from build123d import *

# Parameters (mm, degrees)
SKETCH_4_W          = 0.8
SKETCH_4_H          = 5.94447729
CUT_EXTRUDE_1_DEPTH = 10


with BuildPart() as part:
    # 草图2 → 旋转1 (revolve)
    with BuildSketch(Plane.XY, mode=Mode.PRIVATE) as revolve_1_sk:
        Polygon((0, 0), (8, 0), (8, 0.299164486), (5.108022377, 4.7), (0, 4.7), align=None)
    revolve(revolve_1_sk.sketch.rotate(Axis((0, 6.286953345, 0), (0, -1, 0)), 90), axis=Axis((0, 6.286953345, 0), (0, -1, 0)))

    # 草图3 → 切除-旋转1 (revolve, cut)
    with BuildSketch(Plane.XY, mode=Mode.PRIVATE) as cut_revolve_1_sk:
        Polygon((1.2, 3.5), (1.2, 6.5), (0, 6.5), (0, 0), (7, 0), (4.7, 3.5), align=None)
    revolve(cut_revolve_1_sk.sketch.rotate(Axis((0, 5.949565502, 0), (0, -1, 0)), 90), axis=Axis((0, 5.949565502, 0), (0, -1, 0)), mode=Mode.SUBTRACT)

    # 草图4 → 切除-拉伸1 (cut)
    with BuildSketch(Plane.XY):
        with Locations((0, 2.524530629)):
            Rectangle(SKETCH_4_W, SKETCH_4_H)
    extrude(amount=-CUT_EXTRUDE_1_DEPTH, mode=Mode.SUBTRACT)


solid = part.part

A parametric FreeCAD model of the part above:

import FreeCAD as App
import Part
import Sketcher
Q = App.Units.Quantity


def add_polygon(sketch, points):
    """Adds a closed chain of lines whose ends are joined by coincident constraints."""
    first, n = sketch.GeometryCount, len(points)
    for a, b in zip(points, points[1:] + points[:1]):
        sketch.addGeometry(Part.LineSegment(App.Vector(*a, 0), App.Vector(*b, 0)), False)
    for i in range(n):
        sketch.addConstraint(Sketcher.Constraint("Coincident", first + i, 2, first + (i + 1) % n, 1))

doc = App.newDocument("Part")
params = doc.addObject("Spreadsheet::Sheet", "Params")
for row, (alias, value) in enumerate([
    ("sketch1_width", "8 mm"),
    ("sketch1_height", "4.7 mm"),
    ("revolution_angle", "360 deg"),
    ("sketch2_width", "7 mm"),
    ("sketch2_height", "3 mm"),
    ("sketch2_width2", "1.2 mm"),
    ("sketch2_width3", "3.5 mm"),
    ("sketch2_height2", "6.5 mm"),
    ("groove_angle", "360 deg"),
    ("sketch3_width", "0.8 mm"),
    ("pocket1_length", "10 mm"),
], start=1):
    params.set(f"A{row}", alias)
    params.set(f"B{row}", "=" + value)
    params.setAlias(f"B{row}", alias)

body = doc.addObject("PartDesign::Body", "Body")

# Sketch on XY plane
sketch1 = doc.addObject("Sketcher::SketchObject", "Sketch")
body.addObject(sketch1)
sketch1.AttachmentSupport = (doc.XY_Plane, [""])
sketch1.MapMode = "FlatFace"
add_polygon(sketch1, [(0, 0), (8, 0), (8, 0.299164), (5.108022, 4.7), (0, 4.7)])  # lines 0-4
sketch1.addConstraint([
    Sketcher.Constraint("Horizontal", 0),
    Sketcher.Constraint("Vertical", 1),
    Sketcher.Constraint("Horizontal", 3),
    Sketcher.Constraint("Vertical", 4),
    Sketcher.Constraint("Coincident", 4, 2, -1, 1),
    Sketcher.Constraint("DistanceX", 0, 1, 0, 2, Q("8 mm")),
    Sketcher.Constraint("DistanceY", 4, 2, 4, 1, Q("4.7 mm")),
    Sketcher.Constraint("DistanceX", 3, 2, 3, 1, Q("5.108022 mm")),
    Sketcher.Constraint("DistanceY", 1, 1, 1, 2, Q("0.299164 mm")),
])
sketch1.setExpression("Constraints[10]", "Params.sketch1_width")
sketch1.setExpression("Constraints[11]", "Params.sketch1_height")
revolution = doc.addObject("PartDesign::Revolution", "Revolution")
body.addObject(revolution)
revolution.Profile = sketch1
revolution.ReferenceAxis = (sketch1, ["V_Axis"])
revolution.setExpression("Angle", "Params.revolution_angle")

# Sketch on XY plane
sketch2 = doc.addObject("Sketcher::SketchObject", "Sketch001")
body.addObject(sketch2)
sketch2.AttachmentSupport = (doc.XY_Plane, [""])
sketch2.MapMode = "FlatFace"
add_polygon(sketch2, [(1.2, 3.5), (1.2, 6.5), (0, 6.5), (0, 0), (7, 0), (4.7, 3.5)])  # lines 0-5
sketch2.addConstraint([
    Sketcher.Constraint("Vertical", 0),
    Sketcher.Constraint("Horizontal", 1),
    Sketcher.Constraint("Vertical", 2),
    Sketcher.Constraint("Horizontal", 3),
    Sketcher.Constraint("Horizontal", 5),
    Sketcher.Constraint("Coincident", 2, 2, -1, 1),
    Sketcher.Constraint("DistanceX", 3, 1, 3, 2, Q("7 mm")),
    Sketcher.Constraint("DistanceY", 0, 1, 0, 2, Q("3 mm")),
    Sketcher.Constraint("DistanceX", 1, 2, 1, 1, Q("1.2 mm")),
    Sketcher.Constraint("DistanceX", 5, 2, 5, 1, Q("3.5 mm")),
    Sketcher.Constraint("DistanceY", 2, 2, 2, 1, Q("6.5 mm")),
])
sketch2.setExpression("Constraints[12]", "Params.sketch2_width")
sketch2.setExpression("Constraints[13]", "Params.sketch2_height")
sketch2.setExpression("Constraints[14]", "Params.sketch2_width2")
sketch2.setExpression("Constraints[15]", "Params.sketch2_width3")
sketch2.setExpression("Constraints[16]", "Params.sketch2_height2")
groove = doc.addObject("PartDesign::Groove", "Groove")
body.addObject(groove)
groove.Profile = sketch2
groove.ReferenceAxis = (sketch2, ["V_Axis"])
groove.setExpression("Angle", "Params.groove_angle")

# Sketch on XY plane
sketch3 = doc.addObject("Sketcher::SketchObject", "Sketch002")
body.addObject(sketch3)
sketch3.AttachmentSupport = (doc.XY_Plane, [""])
sketch3.MapMode = "FlatFace"
add_polygon(sketch3, [(-0.4, 5.496769), (-0.4, -0.447708), (0.4, -0.447708), (0.4, 5.496769)])  # lines 0-3
sketch3.addConstraint([
    Sketcher.Constraint("Vertical", 0),
    Sketcher.Constraint("Horizontal", 1),
    Sketcher.Constraint("Vertical", 2),
    Sketcher.Constraint("Horizontal", 3),
    Sketcher.Constraint("DistanceX", 1, 1, 1, 2, Q("0.8 mm")),
    Sketcher.Constraint("DistanceX", 0, 2, -1, 1, Q("0.4 mm")),
    Sketcher.Constraint("DistanceY", 0, 2, 0, 1, Q("5.944477 mm")),
    Sketcher.Constraint("DistanceY", 0, 2, -1, 1, Q("0.447708 mm")),
])
sketch3.setExpression("Constraints[8]", "Params.sketch3_width")
pocket1 = doc.addObject("PartDesign::Pocket", "Pocket")
body.addObject(pocket1)
pocket1.Profile = sketch3
pocket1.setExpression("Length", "Params.pocket1_length")

doc.recompute()
